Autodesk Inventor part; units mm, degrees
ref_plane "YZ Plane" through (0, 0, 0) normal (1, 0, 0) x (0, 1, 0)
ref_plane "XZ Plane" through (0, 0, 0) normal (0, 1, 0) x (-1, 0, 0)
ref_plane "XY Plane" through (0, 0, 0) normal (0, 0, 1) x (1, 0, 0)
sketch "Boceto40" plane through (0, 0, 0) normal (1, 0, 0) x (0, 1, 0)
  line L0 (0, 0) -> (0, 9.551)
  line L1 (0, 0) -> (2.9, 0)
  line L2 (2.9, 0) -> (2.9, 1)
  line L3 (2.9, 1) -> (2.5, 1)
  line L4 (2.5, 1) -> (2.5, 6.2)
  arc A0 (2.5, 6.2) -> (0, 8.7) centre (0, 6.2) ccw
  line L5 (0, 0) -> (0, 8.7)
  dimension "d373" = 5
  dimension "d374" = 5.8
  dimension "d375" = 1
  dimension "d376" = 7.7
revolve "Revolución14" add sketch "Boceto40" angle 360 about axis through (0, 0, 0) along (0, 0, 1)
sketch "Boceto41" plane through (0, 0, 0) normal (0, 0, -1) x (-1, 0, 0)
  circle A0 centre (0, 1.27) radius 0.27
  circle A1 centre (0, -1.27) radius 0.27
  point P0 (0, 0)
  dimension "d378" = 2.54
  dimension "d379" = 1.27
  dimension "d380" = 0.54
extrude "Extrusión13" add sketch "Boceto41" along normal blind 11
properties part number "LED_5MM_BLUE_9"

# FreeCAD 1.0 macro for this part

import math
import FreeCAD as App
import Part
import Sketcher

V = App.Vector
Q = App.Units.Quantity

doc = App.newDocument("Part")
body = doc.addObject("PartDesign::Body", "Body")

sketch1 = doc.addObject("Sketcher::SketchObject", "Sketch")
body.addObject(sketch1)
sketch1.AttachmentSupport = (doc.YZ_Plane, [""])
sketch1.MapMode = "FlatFace"
sketch1.addGeometry([
    Part.LineSegment(V(0, 8.7, 0), V(0, 0, 0)),
    Part.LineSegment(V(0, 0, 0), V(2.9, 0, 0)),
    Part.LineSegment(V(2.9, 0, 0), V(2.9, 1, 0)),
    Part.LineSegment(V(2.9, 1, 0), V(2.5, 1, 0)),
    Part.LineSegment(V(2.5, 1, 0), V(2.5, 6.2, 0)),
    Part.ArcOfCircle(Part.Circle(V(0, 6.2, 0), V(0, 0, 1), 2.5), math.radians(0), math.radians(90)),
], False)
sketch1.addConstraint([
    Sketcher.Constraint("Coincident", 0, 2, 1, 1),
    Sketcher.Constraint("Coincident", 1, 2, 2, 1),
    Sketcher.Constraint("Coincident", 2, 2, 3, 1),
    Sketcher.Constraint("Coincident", 3, 2, 4, 1),
    Sketcher.Constraint("Tangent", 4, 2, 5, 1),
    Sketcher.Constraint("Coincident", 5, 2, 0, 1),
    Sketcher.Constraint("Vertical", 0),
    Sketcher.Constraint("Horizontal", 1),
    Sketcher.Constraint("Vertical", 2),
    Sketcher.Constraint("Horizontal", 3),
    Sketcher.Constraint("Vertical", 4),
    Sketcher.Constraint("Coincident", 0, 2, -1, 1),
    Sketcher.Constraint("PointOnObject", 5, 3, -2),
    Sketcher.Constraint("Radius", 5, Q("2.5 mm")),
    Sketcher.Constraint("DistanceY", 2, 1, 2, 2, Q("1 mm")),
    Sketcher.Constraint("DistanceY", 3, 2, 5, 2, Q("7.7 mm")),
    Sketcher.Constraint("DistanceX", 1, 1, 1, 2, Q("2.9 mm")),
])
revolution = doc.addObject("PartDesign::Revolution", "Revolution")
body.addObject(revolution)
revolution.Profile = sketch1
revolution.ReferenceAxis = (sketch1, ["V_Axis"])
revolution.Angle = 360

sketch2 = doc.addObject("Sketcher::SketchObject", "Sketch001")
body.addObject(sketch2)
sketch2.AttachmentSupport = (doc.XY_Plane, [""])
sketch2.MapMode = "FlatFace"
sketch2.addGeometry([
    Part.Circle(V(0, 1.27, 0), V(0, 0, 1), 0.27),
    Part.Circle(V(0, -1.27, 0), V(0, 0, 1), 0.27),
], False)
sketch2.addConstraint([
    Sketcher.Constraint("Equal", 0, 1),
    Sketcher.Constraint("Symmetric", 0, 3, 1, 3, -1, 1),
    Sketcher.Constraint("PointOnObject", 0, 3, -2),
    Sketcher.Constraint("Diameter", 0, Q("0.54 mm")),
    Sketcher.Constraint("DistanceY", -1, 1, 0, 3, Q("1.27 mm")),
])
pad1 = doc.addObject("PartDesign::Pad", "Pad")
body.addObject(pad1)
pad1.Profile = sketch2
pad1.Length = 11
pad1.Reversed = True

doc.recompute()
